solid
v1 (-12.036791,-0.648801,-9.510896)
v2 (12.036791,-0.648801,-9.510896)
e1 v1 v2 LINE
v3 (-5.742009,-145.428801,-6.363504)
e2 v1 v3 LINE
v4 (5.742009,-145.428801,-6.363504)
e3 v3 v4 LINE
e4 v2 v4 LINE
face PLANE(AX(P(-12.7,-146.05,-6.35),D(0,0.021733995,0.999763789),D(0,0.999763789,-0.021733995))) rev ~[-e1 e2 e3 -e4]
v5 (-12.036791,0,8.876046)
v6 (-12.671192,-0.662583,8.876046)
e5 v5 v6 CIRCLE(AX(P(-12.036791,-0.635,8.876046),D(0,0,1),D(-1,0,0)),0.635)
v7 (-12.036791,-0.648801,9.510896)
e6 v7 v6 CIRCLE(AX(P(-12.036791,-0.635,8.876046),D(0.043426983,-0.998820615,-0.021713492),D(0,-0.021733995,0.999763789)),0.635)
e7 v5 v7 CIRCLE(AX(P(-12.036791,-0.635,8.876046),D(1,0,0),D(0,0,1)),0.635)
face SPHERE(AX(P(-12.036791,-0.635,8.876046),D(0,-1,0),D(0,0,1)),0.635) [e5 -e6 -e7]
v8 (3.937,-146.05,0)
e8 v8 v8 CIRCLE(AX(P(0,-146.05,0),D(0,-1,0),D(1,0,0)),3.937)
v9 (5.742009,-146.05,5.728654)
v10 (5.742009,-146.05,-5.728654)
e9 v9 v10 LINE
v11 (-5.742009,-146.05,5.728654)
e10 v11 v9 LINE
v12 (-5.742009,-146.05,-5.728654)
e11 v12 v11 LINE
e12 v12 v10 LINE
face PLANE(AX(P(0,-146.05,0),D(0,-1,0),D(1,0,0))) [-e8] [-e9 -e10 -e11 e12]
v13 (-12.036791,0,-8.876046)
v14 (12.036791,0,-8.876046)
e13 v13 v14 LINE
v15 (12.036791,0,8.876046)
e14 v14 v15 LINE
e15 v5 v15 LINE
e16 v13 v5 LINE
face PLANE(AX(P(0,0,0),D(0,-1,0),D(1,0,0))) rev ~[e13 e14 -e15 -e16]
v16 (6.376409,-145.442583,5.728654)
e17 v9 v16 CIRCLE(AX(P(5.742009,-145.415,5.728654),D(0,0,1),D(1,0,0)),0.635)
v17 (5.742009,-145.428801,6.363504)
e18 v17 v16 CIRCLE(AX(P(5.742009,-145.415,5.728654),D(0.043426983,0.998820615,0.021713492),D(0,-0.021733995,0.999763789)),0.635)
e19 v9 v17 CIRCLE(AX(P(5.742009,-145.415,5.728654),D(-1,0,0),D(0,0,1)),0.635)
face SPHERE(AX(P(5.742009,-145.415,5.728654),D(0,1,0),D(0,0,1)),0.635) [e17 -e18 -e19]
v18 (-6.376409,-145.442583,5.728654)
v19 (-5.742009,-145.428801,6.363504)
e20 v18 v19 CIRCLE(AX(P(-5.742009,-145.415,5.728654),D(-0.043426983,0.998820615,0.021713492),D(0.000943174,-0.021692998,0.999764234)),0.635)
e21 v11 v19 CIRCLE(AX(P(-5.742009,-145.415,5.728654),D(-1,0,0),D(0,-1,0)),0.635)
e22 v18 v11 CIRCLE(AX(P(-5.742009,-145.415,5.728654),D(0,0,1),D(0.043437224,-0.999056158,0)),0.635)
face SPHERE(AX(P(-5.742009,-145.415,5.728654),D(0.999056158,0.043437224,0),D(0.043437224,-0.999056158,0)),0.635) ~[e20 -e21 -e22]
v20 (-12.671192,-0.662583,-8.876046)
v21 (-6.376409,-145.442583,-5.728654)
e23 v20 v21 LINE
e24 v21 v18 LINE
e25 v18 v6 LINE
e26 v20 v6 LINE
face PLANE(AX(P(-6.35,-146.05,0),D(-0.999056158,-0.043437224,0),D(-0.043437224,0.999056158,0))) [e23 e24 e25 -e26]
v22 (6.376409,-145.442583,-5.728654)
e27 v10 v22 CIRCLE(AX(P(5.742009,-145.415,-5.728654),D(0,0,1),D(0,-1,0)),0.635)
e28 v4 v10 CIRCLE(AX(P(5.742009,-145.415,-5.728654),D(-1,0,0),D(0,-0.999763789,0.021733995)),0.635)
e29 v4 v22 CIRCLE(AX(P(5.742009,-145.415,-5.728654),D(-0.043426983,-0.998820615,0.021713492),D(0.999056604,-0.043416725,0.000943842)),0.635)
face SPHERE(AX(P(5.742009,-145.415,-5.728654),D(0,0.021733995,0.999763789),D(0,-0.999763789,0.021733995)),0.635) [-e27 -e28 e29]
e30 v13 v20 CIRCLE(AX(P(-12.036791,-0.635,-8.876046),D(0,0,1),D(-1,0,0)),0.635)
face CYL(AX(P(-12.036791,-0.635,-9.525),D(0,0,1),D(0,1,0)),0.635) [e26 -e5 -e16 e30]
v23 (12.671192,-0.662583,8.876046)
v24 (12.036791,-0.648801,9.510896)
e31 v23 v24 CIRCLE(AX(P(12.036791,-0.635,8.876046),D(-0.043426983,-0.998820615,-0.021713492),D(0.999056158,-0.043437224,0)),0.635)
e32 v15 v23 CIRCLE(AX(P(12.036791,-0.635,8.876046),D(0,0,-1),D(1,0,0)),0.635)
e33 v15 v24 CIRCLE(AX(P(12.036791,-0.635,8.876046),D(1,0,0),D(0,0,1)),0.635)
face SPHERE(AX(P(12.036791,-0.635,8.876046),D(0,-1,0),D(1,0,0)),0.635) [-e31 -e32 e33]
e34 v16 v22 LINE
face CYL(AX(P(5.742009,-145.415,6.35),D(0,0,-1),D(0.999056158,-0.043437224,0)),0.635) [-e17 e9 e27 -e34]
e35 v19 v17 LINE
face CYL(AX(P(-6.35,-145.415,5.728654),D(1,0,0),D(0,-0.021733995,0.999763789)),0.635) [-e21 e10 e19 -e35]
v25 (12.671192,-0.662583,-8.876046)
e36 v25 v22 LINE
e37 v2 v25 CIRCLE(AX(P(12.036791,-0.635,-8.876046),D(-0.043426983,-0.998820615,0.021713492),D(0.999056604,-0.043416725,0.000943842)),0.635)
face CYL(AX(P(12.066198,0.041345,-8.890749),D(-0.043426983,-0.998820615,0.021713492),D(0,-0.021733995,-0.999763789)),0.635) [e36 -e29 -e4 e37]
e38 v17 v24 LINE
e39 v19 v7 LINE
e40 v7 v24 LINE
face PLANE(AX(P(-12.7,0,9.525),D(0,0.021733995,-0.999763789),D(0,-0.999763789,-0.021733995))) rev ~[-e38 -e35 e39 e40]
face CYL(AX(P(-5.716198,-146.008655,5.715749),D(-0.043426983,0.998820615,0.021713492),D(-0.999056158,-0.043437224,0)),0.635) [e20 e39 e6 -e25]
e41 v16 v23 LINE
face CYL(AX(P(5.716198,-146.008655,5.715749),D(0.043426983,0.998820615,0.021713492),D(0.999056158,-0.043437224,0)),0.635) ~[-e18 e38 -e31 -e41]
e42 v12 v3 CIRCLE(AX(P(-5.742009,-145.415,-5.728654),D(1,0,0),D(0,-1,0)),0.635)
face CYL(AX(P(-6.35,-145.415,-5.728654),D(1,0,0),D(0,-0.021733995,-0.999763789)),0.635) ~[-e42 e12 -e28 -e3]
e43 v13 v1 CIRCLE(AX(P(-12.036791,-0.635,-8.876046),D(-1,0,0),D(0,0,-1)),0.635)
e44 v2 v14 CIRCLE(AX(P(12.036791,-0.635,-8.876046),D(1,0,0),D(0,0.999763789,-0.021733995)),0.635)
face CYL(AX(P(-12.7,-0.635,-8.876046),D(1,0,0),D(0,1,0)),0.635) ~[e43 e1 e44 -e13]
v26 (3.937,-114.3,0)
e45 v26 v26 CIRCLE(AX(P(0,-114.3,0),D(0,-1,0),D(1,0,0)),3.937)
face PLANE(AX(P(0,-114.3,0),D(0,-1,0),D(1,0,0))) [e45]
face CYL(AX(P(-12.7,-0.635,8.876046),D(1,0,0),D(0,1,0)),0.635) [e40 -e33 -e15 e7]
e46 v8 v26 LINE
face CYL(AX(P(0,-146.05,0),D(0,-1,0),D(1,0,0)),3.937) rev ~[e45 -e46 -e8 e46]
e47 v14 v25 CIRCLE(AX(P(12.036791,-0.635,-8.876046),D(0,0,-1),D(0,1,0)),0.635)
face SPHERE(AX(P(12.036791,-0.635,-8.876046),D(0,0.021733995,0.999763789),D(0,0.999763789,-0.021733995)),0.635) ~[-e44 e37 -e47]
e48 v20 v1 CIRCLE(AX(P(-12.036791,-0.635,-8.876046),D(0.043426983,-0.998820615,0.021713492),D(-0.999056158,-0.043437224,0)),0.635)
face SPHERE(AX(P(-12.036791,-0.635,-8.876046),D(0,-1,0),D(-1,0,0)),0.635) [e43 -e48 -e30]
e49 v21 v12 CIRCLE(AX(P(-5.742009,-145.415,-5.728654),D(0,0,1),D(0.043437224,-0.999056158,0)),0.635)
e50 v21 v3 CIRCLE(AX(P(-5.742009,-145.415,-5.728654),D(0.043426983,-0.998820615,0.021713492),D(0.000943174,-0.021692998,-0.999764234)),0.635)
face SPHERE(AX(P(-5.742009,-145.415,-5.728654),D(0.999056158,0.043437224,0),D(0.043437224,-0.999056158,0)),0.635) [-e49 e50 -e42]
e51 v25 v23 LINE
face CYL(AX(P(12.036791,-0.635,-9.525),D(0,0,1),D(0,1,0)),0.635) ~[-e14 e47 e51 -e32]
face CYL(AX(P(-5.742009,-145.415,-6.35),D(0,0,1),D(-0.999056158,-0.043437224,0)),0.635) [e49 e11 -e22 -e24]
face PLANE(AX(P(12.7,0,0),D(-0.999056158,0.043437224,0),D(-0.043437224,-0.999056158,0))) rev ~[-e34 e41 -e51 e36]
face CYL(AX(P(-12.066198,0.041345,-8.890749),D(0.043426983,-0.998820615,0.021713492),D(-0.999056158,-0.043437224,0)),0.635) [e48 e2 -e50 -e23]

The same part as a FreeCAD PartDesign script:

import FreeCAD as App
import Part
import Sketcher

V = App.Vector
Q = App.Units.Quantity


def add_polygon(sketch, points):
    """Adds a closed chain of lines whose ends are joined by coincident constraints."""
    first, n = sketch.GeometryCount, len(points)
    for a, b in zip(points, points[1:] + points[:1]):
        sketch.addGeometry(Part.LineSegment(App.Vector(*a, 0), App.Vector(*b, 0)), False)
    for i in range(n):
        sketch.addConstraint(Sketcher.Constraint("Coincident", first + i, 2, first + (i + 1) % n, 1))

doc = App.newDocument("Part")
params = doc.addObject("Spreadsheet::Sheet", "Params")
for row, (alias, value) in enumerate([
    ("sketch1_width", "1 in"),
    ("sketch1_height", "0.75 in"),
    ("pad1_length", "5.75 in"),
    ("sketch2_width", "5.75 in"),
    ("sketch2_height", "0.125 in"),
    ("pocket1_length", "1 in"),
    ("sketch3_width", "5.75 in"),
    ("sketch3_height", "0.125 in"),
    ("pocket2_length", "1 in"),
    ("sketch4_width", "0.25 in"),
    ("sketch4_height", "5.75 in"),
    ("pocket3_length", "1 in"),
    ("fillet_radius", "0.025 in"),
    ("sketch5_diameter", "0.31 in"),
    ("pocket4_length", "1.25 in"),
], start=1):
    params.set(f"A{row}", alias)
    params.set(f"B{row}", "=" + value)
    params.setAlias(f"B{row}", alias)

body = doc.addObject("PartDesign::Body", "Body")

# Sketch on XZ plane
sketch1 = body.newObject("Sketcher::SketchObject", "Sketch")
sketch1.AttachmentSupport = (doc.getObject("XZ_Plane"), [""])
sketch1.MapMode = "FlatFace"
add_polygon(sketch1, [(-13, 10), (-13, -10), (13, -10), (13, 10)])  # lines 0-3
sketch1.addConstraint(Sketcher.Constraint("Vertical", 0))
sketch1.addConstraint(Sketcher.Constraint("Horizontal", 1))
sketch1.addConstraint(Sketcher.Constraint("Vertical", 2))
sketch1.addConstraint(Sketcher.Constraint("Horizontal", 3))
sketch1.addConstraint(Sketcher.Constraint("Symmetric", 0, 2, 2, 2, -1, 1))
sketch1.addConstraint(Sketcher.Constraint("DistanceX", 1, 1, 1, 2, Q("1 in")))
sketch1.addConstraint(Sketcher.Constraint("DistanceY", 0, 2, 0, 1, Q("0.75 in")))
sketch1.setExpression("Constraints[9]", "Params.sketch1_width")
sketch1.setExpression("Constraints[10]", "Params.sketch1_height")
pad1 = body.newObject("PartDesign::Pad", "Pad")
pad1.Profile = sketch1
pad1.setExpression("Length", "Params.pad1_length")

# Sketch on YZ plane
sketch2 = body.newObject("Sketcher::SketchObject", "Sketch001")
sketch2.AttachmentSupport = (doc.getObject("YZ_Plane"), [""])
sketch2.MapMode = "FlatFace"
sketch2.AttachmentOffset = App.Placement(V(0, 0, -0.5 * 25.4), App.Rotation())
add_polygon(sketch2, [(-146.1, 9.5), (0, 9.5), (-146.1, 6.3)])  # lines 0-2
sketch2.addConstraint(Sketcher.Constraint("Horizontal", 0))
sketch2.addConstraint(Sketcher.Constraint("Vertical", 2))
sketch2.addConstraint(Sketcher.Constraint("PointOnObject", 0, 2, -2))
sketch2.addConstraint(Sketcher.Constraint("DistanceX", 0, 1, 0, 2, Q("5.75 in")))
sketch2.addConstraint(Sketcher.Constraint("DistanceY", 2, 1, 2, 2, Q("0.125 in")))
sketch2.addConstraint(Sketcher.Constraint("DistanceY", -1, 1, 1, 2, Q("0.25 in")))
sketch2.setExpression("Constraints[6]", "Params.sketch2_width")
sketch2.setExpression("Constraints[7]", "Params.sketch2_height")
pocket1 = body.newObject("PartDesign::Pocket", "Pocket")
pocket1.Profile = sketch2
pocket1.setExpression("Length", "Params.pocket1_length")
pocket1.Reversed = True

# Sketch on YZ plane
sketch3 = body.newObject("Sketcher::SketchObject", "Sketch002")
sketch3.AttachmentSupport = (doc.getObject("YZ_Plane"), [""])
sketch3.MapMode = "FlatFace"
sketch3.AttachmentOffset = App.Placement(V(0, 0, -0.5 * 25.4), App.Rotation())
add_polygon(sketch3, [(-146.1, -6.3), (0, -9.5), (-146.1, -9.5)])  # lines 0-2
sketch3.addConstraint(Sketcher.Constraint("Horizontal", 1))
sketch3.addConstraint(Sketcher.Constraint("Vertical", 2))
sketch3.addConstraint(Sketcher.Constraint("PointOnObject", 0, 2, -2))
sketch3.addConstraint(Sketcher.Constraint("DistanceX", 1, 2, 1, 1, Q("5.75 in")))
sketch3.addConstraint(Sketcher.Constraint("DistanceY", 2, 1, 2, 2, Q("0.125 in")))
sketch3.addConstraint(Sketcher.Constraint("DistanceY", 2, 2, -1, 1, Q("0.25 in")))
sketch3.setExpression("Constraints[6]", "Params.sketch3_width")
sketch3.setExpression("Constraints[7]", "Params.sketch3_height")
pocket2 = body.newObject("PartDesign::Pocket", "Pocket001")
pocket2.Profile = sketch3
pocket2.setExpression("Length", "Params.pocket2_length")
pocket2.Reversed = True

# Sketch on XY plane
sketch4 = body.newObject("Sketcher::SketchObject", "Sketch003")
sketch4.AttachmentSupport = (doc.getObject("XY_Plane"), [""])
sketch4.MapMode = "FlatFace"
add_polygon(sketch4, [(-13, -146), (-6, -146), (-13, 0)])  # lines 0-2
add_polygon(sketch4, [(6, -146), (13, -146), (13, 0)])  # lines 3-5
sketch4.addConstraint(Sketcher.Constraint("Horizontal", 0))
sketch4.addConstraint(Sketcher.Constraint("Vertical", 2))
sketch4.addConstraint(Sketcher.Constraint("Horizontal", 3))
sketch4.addConstraint(Sketcher.Constraint("Vertical", 4))
sketch4.addConstraint(Sketcher.Constraint("Symmetric", 1, 2, 4, 2, -1, 1))
sketch4.addConstraint(Sketcher.Constraint("Symmetric", 0, 2, 5, 2, -2))
sketch4.addConstraint(Sketcher.Constraint("PointOnObject", 1, 2, -1))
sketch4.addConstraint(Sketcher.Constraint("DistanceX", 2, 2, 3, 2, Q("1 in")))
sketch4.addConstraint(Sketcher.Constraint("DistanceX", 0, 1, 0, 2, Q("0.25 in")))
sketch4.addConstraint(Sketcher.Constraint("DistanceY", 2, 2, 2, 1, Q("5.75 in")))
sketch4.setExpression("Constraints[14]", "Params.sketch4_width")
sketch4.setExpression("Constraints[15]", "Params.sketch4_height")
pocket3 = body.newObject("PartDesign::Pocket", "Pocket002")
pocket3.Profile = sketch4
pocket3.setExpression("Length", "Params.pocket3_length")
pocket3.Midplane = True
doc.recompute()

fillet = body.newObject("PartDesign::Fillet", "Fillet")
fillet.Base = (pocket3, ["Edge1"])
fillet.UseAllEdges = True
fillet.setExpression("Radius", "Params.fillet_radius")

# Sketch on XZ plane
sketch5 = body.newObject("Sketcher::SketchObject", "Sketch004")
sketch5.AttachmentSupport = (doc.getObject("XZ_Plane"), [""])
sketch5.MapMode = "FlatFace"
sketch5.AttachmentOffset = App.Placement(V(0, 0, 5.75 * 25.4), App.Rotation())
sketch5.addGeometry(Part.Circle(V(0, 0, 0), V(0, 0, 1), 3.9), False)
sketch5.addConstraint(Sketcher.Constraint("Coincident", 0, 3, -1, 1))
sketch5.addConstraint(Sketcher.Constraint("Diameter", 0, Q("0.31 in")))
sketch5.setExpression("Constraints[1]", "Params.sketch5_diameter")
pocket4 = body.newObject("PartDesign::Pocket", "Pocket003")
pocket4.Profile = sketch5
pocket4.setExpression("Length", "Params.pocket4_length")

doc.recompute()
